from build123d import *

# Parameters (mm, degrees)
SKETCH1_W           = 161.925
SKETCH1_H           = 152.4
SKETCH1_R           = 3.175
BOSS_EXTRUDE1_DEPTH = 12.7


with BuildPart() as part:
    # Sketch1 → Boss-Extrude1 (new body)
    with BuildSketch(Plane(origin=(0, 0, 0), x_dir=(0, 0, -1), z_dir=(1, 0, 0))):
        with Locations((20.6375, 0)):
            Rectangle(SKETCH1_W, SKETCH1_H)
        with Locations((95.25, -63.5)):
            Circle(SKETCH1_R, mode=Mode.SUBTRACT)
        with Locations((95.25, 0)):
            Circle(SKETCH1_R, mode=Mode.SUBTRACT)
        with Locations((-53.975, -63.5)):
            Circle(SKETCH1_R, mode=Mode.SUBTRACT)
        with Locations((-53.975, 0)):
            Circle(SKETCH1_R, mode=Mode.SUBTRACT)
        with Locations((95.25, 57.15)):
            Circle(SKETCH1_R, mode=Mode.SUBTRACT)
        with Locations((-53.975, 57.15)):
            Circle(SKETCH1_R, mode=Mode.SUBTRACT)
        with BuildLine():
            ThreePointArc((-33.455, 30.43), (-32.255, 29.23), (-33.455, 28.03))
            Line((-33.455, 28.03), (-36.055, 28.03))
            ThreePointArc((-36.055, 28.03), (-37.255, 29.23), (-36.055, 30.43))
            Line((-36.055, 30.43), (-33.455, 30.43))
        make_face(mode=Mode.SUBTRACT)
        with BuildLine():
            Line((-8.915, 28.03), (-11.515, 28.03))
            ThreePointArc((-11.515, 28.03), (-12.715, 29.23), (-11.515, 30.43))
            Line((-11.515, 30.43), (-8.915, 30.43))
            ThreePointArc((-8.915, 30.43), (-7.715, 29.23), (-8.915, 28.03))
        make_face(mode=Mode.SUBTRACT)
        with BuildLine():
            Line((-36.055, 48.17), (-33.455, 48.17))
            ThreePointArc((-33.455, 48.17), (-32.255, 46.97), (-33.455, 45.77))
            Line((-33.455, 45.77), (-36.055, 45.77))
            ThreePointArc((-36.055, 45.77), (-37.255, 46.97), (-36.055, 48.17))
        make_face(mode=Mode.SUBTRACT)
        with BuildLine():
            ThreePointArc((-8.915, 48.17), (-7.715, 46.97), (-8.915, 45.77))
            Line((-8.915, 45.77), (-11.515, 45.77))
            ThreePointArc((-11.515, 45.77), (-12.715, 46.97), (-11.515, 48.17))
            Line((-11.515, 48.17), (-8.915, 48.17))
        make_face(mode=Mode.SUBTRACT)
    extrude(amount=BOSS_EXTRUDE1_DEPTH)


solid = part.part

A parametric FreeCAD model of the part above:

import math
import FreeCAD as App
import Part
import Sketcher
from FreeCAD import Vector
Q = App.Units.Quantity

doc = App.newDocument("Part")
body = doc.addObject("PartDesign::Body", "Body")

sketch1 = body.newObject("Sketcher::SketchObject", "Sketch")
sketch1.AttachmentSupport = (doc.getObject("YZ_Plane"), [""])
sketch1.MapMode = "FlatFace"
sketch1.addGeometry(Part.LineSegment(Vector(76.2, 60.3, 0), Vector(-76.2, 60.3, 0)), False)
sketch1.addGeometry(Part.LineSegment(Vector(-76.2, 60.3, 0), Vector(-76.2, -101.6, 0)), False)
sketch1.addGeometry(Part.LineSegment(Vector(-76.2, -101.6, 0), Vector(76.2, -101.6, 0)), False)
sketch1.addGeometry(Part.LineSegment(Vector(76.2, -101.6, 0), Vector(76.2, 60.3, 0)), False)
sketch1.addGeometry(Part.Circle(Vector(-63.5, 54, 0), Vector(0, 0, 1), 3.2), False)
sketch1.addGeometry(Part.Circle(Vector(-63.5, -95.2, 0), Vector(0, 0, 1), 3.2), False)
sketch1.addGeometry(Part.Circle(Vector(0, 54, 0), Vector(0, 0, 1), 3.2), False)
sketch1.addGeometry(Part.LineSegment(Vector(30.4, 36.1, 0), Vector(30.4, 33.5, 0)), False)
sketch1.addGeometry(Part.ArcOfCircle(Part.Circle(Vector(29.2, 33.5, 0), Vector(0, 0, 1), 1.2), math.radians(180), math.radians(360)), False)
sketch1.addGeometry(Part.LineSegment(Vector(28, 33.5, 0), Vector(28, 36.1, 0)), False)
sketch1.addGeometry(Part.ArcOfCircle(Part.Circle(Vector(29.2, 36.1, 0), Vector(0, 0, 1), 1.2), math.radians(0), math.radians(180)), False)
sketch1.addGeometry(Part.Circle(Vector(57.1, 54, 0), Vector(0, 0, 1), 3.2), False)
sketch1.addGeometry(Part.ArcOfCircle(Part.Circle(Vector(47, 36.1, 0), Vector(0, 0, 1), 1.2), math.radians(0), math.radians(180)), False)
sketch1.addGeometry(Part.LineSegment(Vector(48.2, 36.1, 0), Vector(48.2, 33.5, 0)), False)
sketch1.addGeometry(Part.ArcOfCircle(Part.Circle(Vector(47, 33.5, 0), Vector(0, 0, 1), 1.2), math.radians(180), math.radians(360)), False)
sketch1.addGeometry(Part.LineSegment(Vector(45.8, 33.5, 0), Vector(45.8, 36.1, 0)), False)
sketch1.addGeometry(Part.ArcOfCircle(Part.Circle(Vector(29.2, 8.9, 0), Vector(0, 0, 1), 1.2), math.radians(180), math.radians(360)), False)
sketch1.addGeometry(Part.LineSegment(Vector(28, 8.9, 0), Vector(28, 11.5, 0)), False)
sketch1.addGeometry(Part.ArcOfCircle(Part.Circle(Vector(29.2, 11.5, 0), Vector(0, 0, 1), 1.2), math.radians(0), math.radians(180)), False)
sketch1.addGeometry(Part.LineSegment(Vector(30.4, 11.5, 0), Vector(30.4, 8.9, 0)), False)
sketch1.addGeometry(Part.LineSegment(Vector(48.2, 11.5, 0), Vector(48.2, 8.9, 0)), False)
sketch1.addGeometry(Part.ArcOfCircle(Part.Circle(Vector(47, 8.9, 0), Vector(0, 0, 1), 1.2), math.radians(180), math.radians(360)), False)
sketch1.addGeometry(Part.LineSegment(Vector(45.8, 8.9, 0), Vector(45.8, 11.5, 0)), False)
sketch1.addGeometry(Part.ArcOfCircle(Part.Circle(Vector(47, 11.5, 0), Vector(0, 0, 1), 1.2), math.radians(0), math.radians(180)), False)
sketch1.addGeometry(Part.Circle(Vector(0, -95.2, 0), Vector(0, 0, 1), 3.2), False)
sketch1.addGeometry(Part.Circle(Vector(57.1, -95.2, 0), Vector(0, 0, 1), 3.2), False)
sketch1.addConstraint(Sketcher.Constraint("Coincident", 0, 2, 1, 1))
sketch1.addConstraint(Sketcher.Constraint("Coincident", 1, 2, 2, 1))
sketch1.addConstraint(Sketcher.Constraint("Coincident", 2, 2, 3, 1))
sketch1.addConstraint(Sketcher.Constraint("Coincident", 3, 2, 0, 1))
sketch1.addConstraint(Sketcher.Constraint("Tangent", 7, 2, 8, 2))
sketch1.addConstraint(Sketcher.Constraint("Tangent", 8, 1, 9, 1))
sketch1.addConstraint(Sketcher.Constraint("Tangent", 9, 2, 10, 2))
sketch1.addConstraint(Sketcher.Constraint("Tangent", 10, 1, 7, 1))
sketch1.addConstraint(Sketcher.Constraint("Tangent", 12, 1, 13, 1))
sketch1.addConstraint(Sketcher.Constraint("Tangent", 13, 2, 14, 2))
sketch1.addConstraint(Sketcher.Constraint("Tangent", 14, 1, 15, 1))
sketch1.addConstraint(Sketcher.Constraint("Tangent", 15, 2, 12, 2))
sketch1.addConstraint(Sketcher.Constraint("Tangent", 16, 1, 17, 1))
sketch1.addConstraint(Sketcher.Constraint("Tangent", 17, 2, 18, 2))
sketch1.addConstraint(Sketcher.Constraint("Tangent", 18, 1, 19, 1))
sketch1.addConstraint(Sketcher.Constraint("Tangent", 19, 2, 16, 2))
sketch1.addConstraint(Sketcher.Constraint("Tangent", 20, 2, 21, 2))
sketch1.addConstraint(Sketcher.Constraint("Tangent", 21, 1, 22, 1))
sketch1.addConstraint(Sketcher.Constraint("Tangent", 22, 2, 23, 2))
sketch1.addConstraint(Sketcher.Constraint("Tangent", 23, 1, 20, 1))
sketch1.addConstraint(Sketcher.Constraint("Horizontal", 0))
sketch1.addConstraint(Sketcher.Constraint("Vertical", 1))
sketch1.addConstraint(Sketcher.Constraint("Horizontal", 2))
sketch1.addConstraint(Sketcher.Constraint("Vertical", 3))
sketch1.addConstraint(Sketcher.Constraint("Vertical", 7))
sketch1.addConstraint(Sketcher.Constraint("Vertical", 9))
sketch1.addConstraint(Sketcher.Constraint("Vertical", 13))
sketch1.addConstraint(Sketcher.Constraint("Vertical", 15))
sketch1.addConstraint(Sketcher.Constraint("Vertical", 17))
sketch1.addConstraint(Sketcher.Constraint("Vertical", 19))
sketch1.addConstraint(Sketcher.Constraint("Vertical", 20))
sketch1.addConstraint(Sketcher.Constraint("Vertical", 22))
sketch1.addConstraint(Sketcher.Constraint("Equal", 4, 5))
sketch1.addConstraint(Sketcher.Constraint("Equal", 5, 6))
sketch1.addConstraint(Sketcher.Constraint("Equal", 6, 11))
sketch1.addConstraint(Sketcher.Constraint("Equal", 10, 12))
sketch1.addConstraint(Sketcher.Constraint("Equal", 14, 16))
sketch1.addConstraint(Sketcher.Constraint("Equal", 18, 21))
sketch1.addConstraint(Sketcher.Constraint("Equal", 11, 24))
sketch1.addConstraint(Sketcher.Constraint("Equal", 24, 25))
sketch1.addConstraint(Sketcher.Constraint("PointOnObject", 6, 3, -2))
sketch1.addConstraint(Sketcher.Constraint("PointOnObject", 24, 3, -2))
sketch1.addConstraint(Sketcher.Constraint("Horizontal", 4, 3, 6, 3))
sketch1.addConstraint(Sketcher.Constraint("Horizontal", 6, 3, 11, 3))
sketch1.addConstraint(Sketcher.Constraint("Horizontal", 10, 3, 12, 3))
sketch1.addConstraint(Sketcher.Constraint("Horizontal", 8, 3, 14, 3))
sketch1.addConstraint(Sketcher.Constraint("Horizontal", 16, 3, 21, 3))
sketch1.addConstraint(Sketcher.Constraint("Horizontal", 18, 3, 23, 3))
sketch1.addConstraint(Sketcher.Constraint("Horizontal", 5, 3, 24, 3))
sketch1.addConstraint(Sketcher.Constraint("Horizontal", 24, 3, 25, 3))
sketch1.addConstraint(Sketcher.Constraint("Vertical", 4, 3, 5, 3))
sketch1.addConstraint(Sketcher.Constraint("Vertical", 10, 3, 16, 3))
sketch1.addConstraint(Sketcher.Constraint("Vertical", 14, 3, 21, 3))
sketch1.addConstraint(Sketcher.Constraint("Vertical", 11, 3, 25, 3))
sketch1.addConstraint(Sketcher.Constraint("Equal", 15, 17))
sketch1.addConstraint(Sketcher.Constraint("Diameter", 4, Q("0.25 in")))
sketch1.addConstraint(Sketcher.Constraint("DistanceX", 0, 2, 0, 1, Q("6 in")))
sketch1.addConstraint(Sketcher.Constraint("DistanceX", 0, 2, -1, 1, Q("3 in")))
sketch1.addConstraint(Sketcher.Constraint("DistanceY", 1, 2, -1, 1, Q("4 in")))
sketch1.addConstraint(Sketcher.Constraint("DistanceX", 4, 3, -1, 1, Q("2.5 in")))
sketch1.addConstraint(Sketcher.Constraint("DistanceY", 1, 2, 1, 1, Q("6.375 in")))
sketch1.addConstraint(Sketcher.Constraint("DistanceY", 5, 3, -1, 1, Q("3.75 in")))
sketch1.addConstraint(Sketcher.Constraint("DistanceX", -1, 1, 11, 3, Q("2.25 in")))
sketch1.addConstraint(Sketcher.Constraint("Radius", 8, 1.2))
sketch1.addConstraint(Sketcher.Constraint("DistanceY", 4, 3, 0, 2, Q("0.25 in")))
sketch1.addConstraint(Sketcher.Constraint("DistanceY", 7, 2, 7, 1, 2.6))
sketch1.addConstraint(Sketcher.Constraint("DistanceX", -1, 1, 8, 3, 29.23))
sketch1.addConstraint(Sketcher.Constraint("DistanceY", -1, 1, 8, 3, 33.455))
sketch1.addConstraint(Sketcher.Constraint("DistanceX", -1, 1, 12, 3, 46.97))
sketch1.addConstraint(Sketcher.Constraint("DistanceY", -1, 1, 16, 3, 8.915))
pad1 = body.newObject("PartDesign::Pad", "Pad")
pad1.Profile = sketch1
pad1.Length = Q("0.5 in")

doc.recompute()
